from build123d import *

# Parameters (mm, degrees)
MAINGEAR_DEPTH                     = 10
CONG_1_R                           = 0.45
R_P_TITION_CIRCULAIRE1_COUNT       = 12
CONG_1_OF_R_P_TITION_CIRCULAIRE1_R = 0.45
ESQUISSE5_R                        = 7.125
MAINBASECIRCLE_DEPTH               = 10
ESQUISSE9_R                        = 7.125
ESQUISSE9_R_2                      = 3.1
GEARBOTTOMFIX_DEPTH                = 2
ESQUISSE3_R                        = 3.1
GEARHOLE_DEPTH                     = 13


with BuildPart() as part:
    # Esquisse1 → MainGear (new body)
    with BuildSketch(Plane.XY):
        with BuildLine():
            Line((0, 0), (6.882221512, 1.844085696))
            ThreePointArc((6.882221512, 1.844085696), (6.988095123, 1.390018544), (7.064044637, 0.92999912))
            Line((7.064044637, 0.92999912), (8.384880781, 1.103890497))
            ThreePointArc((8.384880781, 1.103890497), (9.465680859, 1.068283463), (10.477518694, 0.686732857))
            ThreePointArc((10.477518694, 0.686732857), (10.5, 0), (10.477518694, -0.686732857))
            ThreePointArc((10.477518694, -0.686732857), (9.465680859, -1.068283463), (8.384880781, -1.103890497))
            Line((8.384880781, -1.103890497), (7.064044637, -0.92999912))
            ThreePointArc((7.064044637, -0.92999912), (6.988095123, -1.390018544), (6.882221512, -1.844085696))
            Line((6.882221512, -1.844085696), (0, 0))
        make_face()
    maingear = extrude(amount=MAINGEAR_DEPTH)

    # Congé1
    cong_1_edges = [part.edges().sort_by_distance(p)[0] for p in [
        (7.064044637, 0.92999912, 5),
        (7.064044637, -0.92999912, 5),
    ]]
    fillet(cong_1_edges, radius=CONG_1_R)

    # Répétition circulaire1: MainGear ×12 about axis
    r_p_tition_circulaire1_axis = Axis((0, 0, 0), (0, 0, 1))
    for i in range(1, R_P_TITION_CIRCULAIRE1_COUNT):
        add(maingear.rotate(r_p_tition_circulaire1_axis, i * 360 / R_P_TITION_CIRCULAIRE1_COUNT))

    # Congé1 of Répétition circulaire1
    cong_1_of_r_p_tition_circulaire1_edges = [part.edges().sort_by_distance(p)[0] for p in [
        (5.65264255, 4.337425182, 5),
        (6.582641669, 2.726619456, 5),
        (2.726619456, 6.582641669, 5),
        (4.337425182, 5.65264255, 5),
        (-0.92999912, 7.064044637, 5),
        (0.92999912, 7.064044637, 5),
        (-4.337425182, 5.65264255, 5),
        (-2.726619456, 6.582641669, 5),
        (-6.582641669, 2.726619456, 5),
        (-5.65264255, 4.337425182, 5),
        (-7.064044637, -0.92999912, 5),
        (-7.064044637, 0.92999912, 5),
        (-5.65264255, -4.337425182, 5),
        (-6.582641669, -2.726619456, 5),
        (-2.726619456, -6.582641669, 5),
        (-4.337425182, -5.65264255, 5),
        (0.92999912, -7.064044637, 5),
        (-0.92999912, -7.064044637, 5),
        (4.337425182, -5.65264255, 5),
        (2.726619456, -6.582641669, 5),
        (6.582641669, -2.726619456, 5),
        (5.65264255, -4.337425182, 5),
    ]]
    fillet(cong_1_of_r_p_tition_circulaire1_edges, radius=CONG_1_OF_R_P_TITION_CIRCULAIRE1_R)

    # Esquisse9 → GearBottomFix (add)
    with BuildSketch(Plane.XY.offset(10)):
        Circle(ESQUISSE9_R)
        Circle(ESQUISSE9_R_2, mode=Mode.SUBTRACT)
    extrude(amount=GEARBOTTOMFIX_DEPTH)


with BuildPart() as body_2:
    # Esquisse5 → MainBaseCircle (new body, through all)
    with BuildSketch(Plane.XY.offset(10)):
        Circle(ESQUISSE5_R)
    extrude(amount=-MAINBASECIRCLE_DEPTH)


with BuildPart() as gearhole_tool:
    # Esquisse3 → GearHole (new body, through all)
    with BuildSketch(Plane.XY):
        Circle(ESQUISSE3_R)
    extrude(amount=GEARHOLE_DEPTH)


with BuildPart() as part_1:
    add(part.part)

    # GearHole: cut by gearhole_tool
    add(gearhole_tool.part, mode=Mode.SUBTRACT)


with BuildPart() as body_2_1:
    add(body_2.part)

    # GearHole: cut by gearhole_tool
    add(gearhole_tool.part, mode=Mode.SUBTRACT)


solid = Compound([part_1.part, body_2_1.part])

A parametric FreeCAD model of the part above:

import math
import FreeCAD as App
import Part
import Sketcher
Q = App.Units.Quantity


def edges_at(feature, points):
    """Names of the edges that pass closest to the given points."""
    edges = feature.Shape.Edges
    near = lambda p: min(range(len(edges)), key=lambda i: edges[i].distToShape(Part.Vertex(*p))[0])
    return sorted({f"Edge{near(p) + 1}" for p in points})

doc = App.newDocument("Part")
body = doc.addObject("PartDesign::Body", "Body")

# Sketch on XY plane
sketch1 = body.newObject("Sketcher::SketchObject", "Sketch")
sketch1.AttachmentSupport = (doc.getObject("XY_Plane"), [""])
sketch1.MapMode = "FlatFace"
sketch1.addGeometry(Part.LineSegment(App.Vector(6.9, 1.8, 0), App.Vector(0, 0, 0)), False)
sketch1.addGeometry(Part.LineSegment(App.Vector(0, 0, 0), App.Vector(6.9, -1.8, 0)), False)
sketch1.addGeometry(Part.ArcOfCircle(Part.Circle(App.Vector(0, 0, 0), App.Vector(0, 0, 1), 7.1), math.radians(-15), math.radians(-7.5)), False)
sketch1.addGeometry(Part.LineSegment(App.Vector(7.1, -0.9, 0), App.Vector(8.4, -1.1, 0)), False)
sketch1.addGeometry(Part.ArcOfCircle(Part.Circle(App.Vector(8.8, 2.2, 0), App.Vector(0, 0, 1), 3.3), math.radians(-98), math.radians(-60)), False)
sketch1.addGeometry(Part.ArcOfCircle(Part.Circle(App.Vector(0, 0, 0), App.Vector(0, 0, 1), 10.5), math.radians(-3.75), math.radians(3.75)), False)
sketch1.addGeometry(Part.ArcOfCircle(Part.Circle(App.Vector(8.8, -2.2, 0), App.Vector(0, 0, 1), 3.3), math.radians(60), math.radians(98)), False)
sketch1.addGeometry(Part.LineSegment(App.Vector(8.4, 1.1, 0), App.Vector(7.1, 0.9, 0)), False)
sketch1.addGeometry(Part.ArcOfCircle(Part.Circle(App.Vector(0, 0, 0), App.Vector(0, 0, 1), 7.1), math.radians(7.5), math.radians(15)), False)
sketch1.addConstraint(Sketcher.Constraint("Coincident", 0, 2, 1, 1))
sketch1.addConstraint(Sketcher.Constraint("Coincident", 1, 2, 2, 1))
sketch1.addConstraint(Sketcher.Constraint("Coincident", 2, 2, 3, 1))
sketch1.addConstraint(Sketcher.Constraint("Tangent", 3, 2, 4, 1))
sketch1.addConstraint(Sketcher.Constraint("Coincident", 4, 2, 5, 1))
sketch1.addConstraint(Sketcher.Constraint("Coincident", 5, 2, 6, 1))
sketch1.addConstraint(Sketcher.Constraint("Tangent", 6, 2, 7, 1))
sketch1.addConstraint(Sketcher.Constraint("Coincident", 7, 2, 8, 1))
sketch1.addConstraint(Sketcher.Constraint("Coincident", 8, 2, 0, 1))
sketch1.addConstraint(Sketcher.Constraint("Coincident", 2, 3, -1, 1))
sketch1.addConstraint(Sketcher.Constraint("Coincident", 5, 3, -1, 1))
sketch1.addConstraint(Sketcher.Constraint("Coincident", 8, 3, -1, 1))
sketch1.addConstraint(Sketcher.Constraint("Coincident", 0, 2, -1, 1))
sketch1.addConstraint(Sketcher.Constraint("Equal", 4, 6))
sketch1.addConstraint(Sketcher.Constraint("Equal", 2, 8))
sketch1.addConstraint(Sketcher.Constraint("Symmetric", 4, 3, 6, 3, -1))
sketch1.addConstraint(Sketcher.Constraint("Vertical", 3, 2, 6, 2))
sketch1.addConstraint(Sketcher.Constraint("Vertical", 1, 2, 8, 2))
sketch1.addConstraint(Sketcher.Constraint("Radius", 5, 10.5))
sketch1.addConstraint(Sketcher.Constraint("Angle", 0, Q("-165 deg")))
sketch1.addConstraint(Sketcher.Constraint("Angle", 3, Q("-7.5 deg")))
sketch1.addConstraint(Sketcher.Constraint("Radius", 2, 7.125))
sketch1.addConstraint(Sketcher.Constraint("DistanceY", 2, 2, -1, 1, 0.929999))
sketch1.addConstraint(Sketcher.Constraint("Radius", 4, 3.315084))
sketch1.addConstraint(Sketcher.Constraint("DistanceY", 6, 3, 4, 2, 1.496099))
pad1 = body.newObject("PartDesign::Pad", "Pad")
pad1.Profile = sketch1
pad1.Length = 10
doc.recompute()

fillet = body.newObject("PartDesign::Fillet", "Fillet")
fillet.Base = (pad1, edges_at(pad1, [(7.064, 0.93, 5), (7.064, -0.93, 5)]))
fillet.Radius = 0.45
doc.recompute()

polarpattern = body.newObject("PartDesign::PolarPattern", "PolarPattern")
polarpattern.Originals = [pad1]
polarpattern.Axis = (doc.getObject("Z_Axis"), [""])
polarpattern.Angle = 360
polarpattern.Occurrences = 12
body.Tip = polarpattern
doc.recompute()

fillet2 = body.newObject("PartDesign::Fillet", "Fillet001")
fillet2.Base = (polarpattern, edges_at(polarpattern, [
    (5.653, 4.337, 5),
    (6.583, 2.727, 5),
    (2.727, 6.583, 5),
    (4.337, 5.653, 5),
    (-0.93, 7.064, 5),
    (0.93, 7.064, 5),
    (-4.337, 5.653, 5),
    (-2.727, 6.583, 5),
    (-6.583, 2.727, 5),
    (-5.653, 4.337, 5),
    (-7.064, -0.93, 5),
    (-7.064, 0.93, 5),
    (-5.653, -4.337, 5),
    (-6.583, -2.727, 5),
    (-2.727, -6.583, 5),
    (-4.337, -5.653, 5),
    (0.93, -7.064, 5),
    (-0.93, -7.064, 5),
    (4.337, -5.653, 5),
    (2.727, -6.583, 5),
    (6.583, -2.727, 5),
    (5.653, -4.337, 5),
]))
fillet2.Radius = 0.45

# Sketch on XY plane
sketch2 = body.newObject("Sketcher::SketchObject", "Sketch001")
sketch2.AttachmentSupport = (doc.getObject("XY_Plane"), [""])
sketch2.MapMode = "FlatFace"
sketch2.AttachmentOffset = App.Placement(App.Vector(0, 0, 10), App.Rotation())
sketch2.addGeometry(Part.Circle(App.Vector(0, 0, 0), App.Vector(0, 0, 1), 7.1), False)
sketch2.addGeometry(Part.Circle(App.Vector(0, 0, 0), App.Vector(0, 0, 1), 3.1), False)
sketch2.addConstraint(Sketcher.Constraint("Coincident", 0, 3, -1, 1))
sketch2.addConstraint(Sketcher.Constraint("Coincident", 1, 3, -1, 1))
sketch2.addConstraint(Sketcher.Constraint("Diameter", 1, 6.2))
sketch2.addConstraint(Sketcher.Constraint("Diameter", 0, 14.25))
pad2 = body.newObject("PartDesign::Pad", "Pad001")
pad2.Profile = sketch2
pad2.Length = 2
body2 = doc.addObject("PartDesign::Body", "Body001")

# Sketch on XY plane
sketch3 = body2.newObject("Sketcher::SketchObject", "Sketch002")
sketch3.AttachmentSupport = (doc.getObject("XY_Plane001"), [""])
sketch3.MapMode = "FlatFace"
sketch3.AttachmentOffset = App.Placement(App.Vector(0, 0, 10), App.Rotation())
sketch3.addGeometry(Part.Circle(App.Vector(0, 0, 0), App.Vector(0, 0, 1), 7), False)
sketch3.addConstraint(Sketcher.Constraint("Coincident", 0, 3, -1, 1))
sketch3.addConstraint(Sketcher.Constraint("Diameter", 0, 14.25))
pad3 = body2.newObject("PartDesign::Pad", "Pad002")
pad3.Profile = sketch3
pad3.Length = 10
pad3.Reversed = True
body3 = doc.addObject("PartDesign::Body", "Body002")

# Sketch on XY plane
sketch4 = body3.newObject("Sketcher::SketchObject", "Sketch003")
sketch4.AttachmentSupport = (doc.getObject("XY_Plane002"), [""])
sketch4.MapMode = "FlatFace"
sketch4.addGeometry(Part.Circle(App.Vector(0, 0, 0), App.Vector(0, 0, 1), 3.1), False)
sketch4.addConstraint(Sketcher.Constraint("Coincident", 0, 3, -1, 1))
sketch4.addConstraint(Sketcher.Constraint("Diameter", 0, 6.2))
pad4 = body3.newObject("PartDesign::Pad", "Pad003")
pad4.Profile = sketch4
pad4.Length = 13
doc.recompute()

body4 = doc.addObject("PartDesign::Body", "Body003")
body4.BaseFeature = body3
boolean = body.newObject("PartDesign::Boolean", "Boolean")
boolean.Type = "Cut"
boolean.addObjects([body4])
doc.recompute()

boolean2 = body2.newObject("PartDesign::Boolean", "Boolean001")
boolean2.Type = "Cut"
boolean2.addObjects([body3])

doc.recompute()
